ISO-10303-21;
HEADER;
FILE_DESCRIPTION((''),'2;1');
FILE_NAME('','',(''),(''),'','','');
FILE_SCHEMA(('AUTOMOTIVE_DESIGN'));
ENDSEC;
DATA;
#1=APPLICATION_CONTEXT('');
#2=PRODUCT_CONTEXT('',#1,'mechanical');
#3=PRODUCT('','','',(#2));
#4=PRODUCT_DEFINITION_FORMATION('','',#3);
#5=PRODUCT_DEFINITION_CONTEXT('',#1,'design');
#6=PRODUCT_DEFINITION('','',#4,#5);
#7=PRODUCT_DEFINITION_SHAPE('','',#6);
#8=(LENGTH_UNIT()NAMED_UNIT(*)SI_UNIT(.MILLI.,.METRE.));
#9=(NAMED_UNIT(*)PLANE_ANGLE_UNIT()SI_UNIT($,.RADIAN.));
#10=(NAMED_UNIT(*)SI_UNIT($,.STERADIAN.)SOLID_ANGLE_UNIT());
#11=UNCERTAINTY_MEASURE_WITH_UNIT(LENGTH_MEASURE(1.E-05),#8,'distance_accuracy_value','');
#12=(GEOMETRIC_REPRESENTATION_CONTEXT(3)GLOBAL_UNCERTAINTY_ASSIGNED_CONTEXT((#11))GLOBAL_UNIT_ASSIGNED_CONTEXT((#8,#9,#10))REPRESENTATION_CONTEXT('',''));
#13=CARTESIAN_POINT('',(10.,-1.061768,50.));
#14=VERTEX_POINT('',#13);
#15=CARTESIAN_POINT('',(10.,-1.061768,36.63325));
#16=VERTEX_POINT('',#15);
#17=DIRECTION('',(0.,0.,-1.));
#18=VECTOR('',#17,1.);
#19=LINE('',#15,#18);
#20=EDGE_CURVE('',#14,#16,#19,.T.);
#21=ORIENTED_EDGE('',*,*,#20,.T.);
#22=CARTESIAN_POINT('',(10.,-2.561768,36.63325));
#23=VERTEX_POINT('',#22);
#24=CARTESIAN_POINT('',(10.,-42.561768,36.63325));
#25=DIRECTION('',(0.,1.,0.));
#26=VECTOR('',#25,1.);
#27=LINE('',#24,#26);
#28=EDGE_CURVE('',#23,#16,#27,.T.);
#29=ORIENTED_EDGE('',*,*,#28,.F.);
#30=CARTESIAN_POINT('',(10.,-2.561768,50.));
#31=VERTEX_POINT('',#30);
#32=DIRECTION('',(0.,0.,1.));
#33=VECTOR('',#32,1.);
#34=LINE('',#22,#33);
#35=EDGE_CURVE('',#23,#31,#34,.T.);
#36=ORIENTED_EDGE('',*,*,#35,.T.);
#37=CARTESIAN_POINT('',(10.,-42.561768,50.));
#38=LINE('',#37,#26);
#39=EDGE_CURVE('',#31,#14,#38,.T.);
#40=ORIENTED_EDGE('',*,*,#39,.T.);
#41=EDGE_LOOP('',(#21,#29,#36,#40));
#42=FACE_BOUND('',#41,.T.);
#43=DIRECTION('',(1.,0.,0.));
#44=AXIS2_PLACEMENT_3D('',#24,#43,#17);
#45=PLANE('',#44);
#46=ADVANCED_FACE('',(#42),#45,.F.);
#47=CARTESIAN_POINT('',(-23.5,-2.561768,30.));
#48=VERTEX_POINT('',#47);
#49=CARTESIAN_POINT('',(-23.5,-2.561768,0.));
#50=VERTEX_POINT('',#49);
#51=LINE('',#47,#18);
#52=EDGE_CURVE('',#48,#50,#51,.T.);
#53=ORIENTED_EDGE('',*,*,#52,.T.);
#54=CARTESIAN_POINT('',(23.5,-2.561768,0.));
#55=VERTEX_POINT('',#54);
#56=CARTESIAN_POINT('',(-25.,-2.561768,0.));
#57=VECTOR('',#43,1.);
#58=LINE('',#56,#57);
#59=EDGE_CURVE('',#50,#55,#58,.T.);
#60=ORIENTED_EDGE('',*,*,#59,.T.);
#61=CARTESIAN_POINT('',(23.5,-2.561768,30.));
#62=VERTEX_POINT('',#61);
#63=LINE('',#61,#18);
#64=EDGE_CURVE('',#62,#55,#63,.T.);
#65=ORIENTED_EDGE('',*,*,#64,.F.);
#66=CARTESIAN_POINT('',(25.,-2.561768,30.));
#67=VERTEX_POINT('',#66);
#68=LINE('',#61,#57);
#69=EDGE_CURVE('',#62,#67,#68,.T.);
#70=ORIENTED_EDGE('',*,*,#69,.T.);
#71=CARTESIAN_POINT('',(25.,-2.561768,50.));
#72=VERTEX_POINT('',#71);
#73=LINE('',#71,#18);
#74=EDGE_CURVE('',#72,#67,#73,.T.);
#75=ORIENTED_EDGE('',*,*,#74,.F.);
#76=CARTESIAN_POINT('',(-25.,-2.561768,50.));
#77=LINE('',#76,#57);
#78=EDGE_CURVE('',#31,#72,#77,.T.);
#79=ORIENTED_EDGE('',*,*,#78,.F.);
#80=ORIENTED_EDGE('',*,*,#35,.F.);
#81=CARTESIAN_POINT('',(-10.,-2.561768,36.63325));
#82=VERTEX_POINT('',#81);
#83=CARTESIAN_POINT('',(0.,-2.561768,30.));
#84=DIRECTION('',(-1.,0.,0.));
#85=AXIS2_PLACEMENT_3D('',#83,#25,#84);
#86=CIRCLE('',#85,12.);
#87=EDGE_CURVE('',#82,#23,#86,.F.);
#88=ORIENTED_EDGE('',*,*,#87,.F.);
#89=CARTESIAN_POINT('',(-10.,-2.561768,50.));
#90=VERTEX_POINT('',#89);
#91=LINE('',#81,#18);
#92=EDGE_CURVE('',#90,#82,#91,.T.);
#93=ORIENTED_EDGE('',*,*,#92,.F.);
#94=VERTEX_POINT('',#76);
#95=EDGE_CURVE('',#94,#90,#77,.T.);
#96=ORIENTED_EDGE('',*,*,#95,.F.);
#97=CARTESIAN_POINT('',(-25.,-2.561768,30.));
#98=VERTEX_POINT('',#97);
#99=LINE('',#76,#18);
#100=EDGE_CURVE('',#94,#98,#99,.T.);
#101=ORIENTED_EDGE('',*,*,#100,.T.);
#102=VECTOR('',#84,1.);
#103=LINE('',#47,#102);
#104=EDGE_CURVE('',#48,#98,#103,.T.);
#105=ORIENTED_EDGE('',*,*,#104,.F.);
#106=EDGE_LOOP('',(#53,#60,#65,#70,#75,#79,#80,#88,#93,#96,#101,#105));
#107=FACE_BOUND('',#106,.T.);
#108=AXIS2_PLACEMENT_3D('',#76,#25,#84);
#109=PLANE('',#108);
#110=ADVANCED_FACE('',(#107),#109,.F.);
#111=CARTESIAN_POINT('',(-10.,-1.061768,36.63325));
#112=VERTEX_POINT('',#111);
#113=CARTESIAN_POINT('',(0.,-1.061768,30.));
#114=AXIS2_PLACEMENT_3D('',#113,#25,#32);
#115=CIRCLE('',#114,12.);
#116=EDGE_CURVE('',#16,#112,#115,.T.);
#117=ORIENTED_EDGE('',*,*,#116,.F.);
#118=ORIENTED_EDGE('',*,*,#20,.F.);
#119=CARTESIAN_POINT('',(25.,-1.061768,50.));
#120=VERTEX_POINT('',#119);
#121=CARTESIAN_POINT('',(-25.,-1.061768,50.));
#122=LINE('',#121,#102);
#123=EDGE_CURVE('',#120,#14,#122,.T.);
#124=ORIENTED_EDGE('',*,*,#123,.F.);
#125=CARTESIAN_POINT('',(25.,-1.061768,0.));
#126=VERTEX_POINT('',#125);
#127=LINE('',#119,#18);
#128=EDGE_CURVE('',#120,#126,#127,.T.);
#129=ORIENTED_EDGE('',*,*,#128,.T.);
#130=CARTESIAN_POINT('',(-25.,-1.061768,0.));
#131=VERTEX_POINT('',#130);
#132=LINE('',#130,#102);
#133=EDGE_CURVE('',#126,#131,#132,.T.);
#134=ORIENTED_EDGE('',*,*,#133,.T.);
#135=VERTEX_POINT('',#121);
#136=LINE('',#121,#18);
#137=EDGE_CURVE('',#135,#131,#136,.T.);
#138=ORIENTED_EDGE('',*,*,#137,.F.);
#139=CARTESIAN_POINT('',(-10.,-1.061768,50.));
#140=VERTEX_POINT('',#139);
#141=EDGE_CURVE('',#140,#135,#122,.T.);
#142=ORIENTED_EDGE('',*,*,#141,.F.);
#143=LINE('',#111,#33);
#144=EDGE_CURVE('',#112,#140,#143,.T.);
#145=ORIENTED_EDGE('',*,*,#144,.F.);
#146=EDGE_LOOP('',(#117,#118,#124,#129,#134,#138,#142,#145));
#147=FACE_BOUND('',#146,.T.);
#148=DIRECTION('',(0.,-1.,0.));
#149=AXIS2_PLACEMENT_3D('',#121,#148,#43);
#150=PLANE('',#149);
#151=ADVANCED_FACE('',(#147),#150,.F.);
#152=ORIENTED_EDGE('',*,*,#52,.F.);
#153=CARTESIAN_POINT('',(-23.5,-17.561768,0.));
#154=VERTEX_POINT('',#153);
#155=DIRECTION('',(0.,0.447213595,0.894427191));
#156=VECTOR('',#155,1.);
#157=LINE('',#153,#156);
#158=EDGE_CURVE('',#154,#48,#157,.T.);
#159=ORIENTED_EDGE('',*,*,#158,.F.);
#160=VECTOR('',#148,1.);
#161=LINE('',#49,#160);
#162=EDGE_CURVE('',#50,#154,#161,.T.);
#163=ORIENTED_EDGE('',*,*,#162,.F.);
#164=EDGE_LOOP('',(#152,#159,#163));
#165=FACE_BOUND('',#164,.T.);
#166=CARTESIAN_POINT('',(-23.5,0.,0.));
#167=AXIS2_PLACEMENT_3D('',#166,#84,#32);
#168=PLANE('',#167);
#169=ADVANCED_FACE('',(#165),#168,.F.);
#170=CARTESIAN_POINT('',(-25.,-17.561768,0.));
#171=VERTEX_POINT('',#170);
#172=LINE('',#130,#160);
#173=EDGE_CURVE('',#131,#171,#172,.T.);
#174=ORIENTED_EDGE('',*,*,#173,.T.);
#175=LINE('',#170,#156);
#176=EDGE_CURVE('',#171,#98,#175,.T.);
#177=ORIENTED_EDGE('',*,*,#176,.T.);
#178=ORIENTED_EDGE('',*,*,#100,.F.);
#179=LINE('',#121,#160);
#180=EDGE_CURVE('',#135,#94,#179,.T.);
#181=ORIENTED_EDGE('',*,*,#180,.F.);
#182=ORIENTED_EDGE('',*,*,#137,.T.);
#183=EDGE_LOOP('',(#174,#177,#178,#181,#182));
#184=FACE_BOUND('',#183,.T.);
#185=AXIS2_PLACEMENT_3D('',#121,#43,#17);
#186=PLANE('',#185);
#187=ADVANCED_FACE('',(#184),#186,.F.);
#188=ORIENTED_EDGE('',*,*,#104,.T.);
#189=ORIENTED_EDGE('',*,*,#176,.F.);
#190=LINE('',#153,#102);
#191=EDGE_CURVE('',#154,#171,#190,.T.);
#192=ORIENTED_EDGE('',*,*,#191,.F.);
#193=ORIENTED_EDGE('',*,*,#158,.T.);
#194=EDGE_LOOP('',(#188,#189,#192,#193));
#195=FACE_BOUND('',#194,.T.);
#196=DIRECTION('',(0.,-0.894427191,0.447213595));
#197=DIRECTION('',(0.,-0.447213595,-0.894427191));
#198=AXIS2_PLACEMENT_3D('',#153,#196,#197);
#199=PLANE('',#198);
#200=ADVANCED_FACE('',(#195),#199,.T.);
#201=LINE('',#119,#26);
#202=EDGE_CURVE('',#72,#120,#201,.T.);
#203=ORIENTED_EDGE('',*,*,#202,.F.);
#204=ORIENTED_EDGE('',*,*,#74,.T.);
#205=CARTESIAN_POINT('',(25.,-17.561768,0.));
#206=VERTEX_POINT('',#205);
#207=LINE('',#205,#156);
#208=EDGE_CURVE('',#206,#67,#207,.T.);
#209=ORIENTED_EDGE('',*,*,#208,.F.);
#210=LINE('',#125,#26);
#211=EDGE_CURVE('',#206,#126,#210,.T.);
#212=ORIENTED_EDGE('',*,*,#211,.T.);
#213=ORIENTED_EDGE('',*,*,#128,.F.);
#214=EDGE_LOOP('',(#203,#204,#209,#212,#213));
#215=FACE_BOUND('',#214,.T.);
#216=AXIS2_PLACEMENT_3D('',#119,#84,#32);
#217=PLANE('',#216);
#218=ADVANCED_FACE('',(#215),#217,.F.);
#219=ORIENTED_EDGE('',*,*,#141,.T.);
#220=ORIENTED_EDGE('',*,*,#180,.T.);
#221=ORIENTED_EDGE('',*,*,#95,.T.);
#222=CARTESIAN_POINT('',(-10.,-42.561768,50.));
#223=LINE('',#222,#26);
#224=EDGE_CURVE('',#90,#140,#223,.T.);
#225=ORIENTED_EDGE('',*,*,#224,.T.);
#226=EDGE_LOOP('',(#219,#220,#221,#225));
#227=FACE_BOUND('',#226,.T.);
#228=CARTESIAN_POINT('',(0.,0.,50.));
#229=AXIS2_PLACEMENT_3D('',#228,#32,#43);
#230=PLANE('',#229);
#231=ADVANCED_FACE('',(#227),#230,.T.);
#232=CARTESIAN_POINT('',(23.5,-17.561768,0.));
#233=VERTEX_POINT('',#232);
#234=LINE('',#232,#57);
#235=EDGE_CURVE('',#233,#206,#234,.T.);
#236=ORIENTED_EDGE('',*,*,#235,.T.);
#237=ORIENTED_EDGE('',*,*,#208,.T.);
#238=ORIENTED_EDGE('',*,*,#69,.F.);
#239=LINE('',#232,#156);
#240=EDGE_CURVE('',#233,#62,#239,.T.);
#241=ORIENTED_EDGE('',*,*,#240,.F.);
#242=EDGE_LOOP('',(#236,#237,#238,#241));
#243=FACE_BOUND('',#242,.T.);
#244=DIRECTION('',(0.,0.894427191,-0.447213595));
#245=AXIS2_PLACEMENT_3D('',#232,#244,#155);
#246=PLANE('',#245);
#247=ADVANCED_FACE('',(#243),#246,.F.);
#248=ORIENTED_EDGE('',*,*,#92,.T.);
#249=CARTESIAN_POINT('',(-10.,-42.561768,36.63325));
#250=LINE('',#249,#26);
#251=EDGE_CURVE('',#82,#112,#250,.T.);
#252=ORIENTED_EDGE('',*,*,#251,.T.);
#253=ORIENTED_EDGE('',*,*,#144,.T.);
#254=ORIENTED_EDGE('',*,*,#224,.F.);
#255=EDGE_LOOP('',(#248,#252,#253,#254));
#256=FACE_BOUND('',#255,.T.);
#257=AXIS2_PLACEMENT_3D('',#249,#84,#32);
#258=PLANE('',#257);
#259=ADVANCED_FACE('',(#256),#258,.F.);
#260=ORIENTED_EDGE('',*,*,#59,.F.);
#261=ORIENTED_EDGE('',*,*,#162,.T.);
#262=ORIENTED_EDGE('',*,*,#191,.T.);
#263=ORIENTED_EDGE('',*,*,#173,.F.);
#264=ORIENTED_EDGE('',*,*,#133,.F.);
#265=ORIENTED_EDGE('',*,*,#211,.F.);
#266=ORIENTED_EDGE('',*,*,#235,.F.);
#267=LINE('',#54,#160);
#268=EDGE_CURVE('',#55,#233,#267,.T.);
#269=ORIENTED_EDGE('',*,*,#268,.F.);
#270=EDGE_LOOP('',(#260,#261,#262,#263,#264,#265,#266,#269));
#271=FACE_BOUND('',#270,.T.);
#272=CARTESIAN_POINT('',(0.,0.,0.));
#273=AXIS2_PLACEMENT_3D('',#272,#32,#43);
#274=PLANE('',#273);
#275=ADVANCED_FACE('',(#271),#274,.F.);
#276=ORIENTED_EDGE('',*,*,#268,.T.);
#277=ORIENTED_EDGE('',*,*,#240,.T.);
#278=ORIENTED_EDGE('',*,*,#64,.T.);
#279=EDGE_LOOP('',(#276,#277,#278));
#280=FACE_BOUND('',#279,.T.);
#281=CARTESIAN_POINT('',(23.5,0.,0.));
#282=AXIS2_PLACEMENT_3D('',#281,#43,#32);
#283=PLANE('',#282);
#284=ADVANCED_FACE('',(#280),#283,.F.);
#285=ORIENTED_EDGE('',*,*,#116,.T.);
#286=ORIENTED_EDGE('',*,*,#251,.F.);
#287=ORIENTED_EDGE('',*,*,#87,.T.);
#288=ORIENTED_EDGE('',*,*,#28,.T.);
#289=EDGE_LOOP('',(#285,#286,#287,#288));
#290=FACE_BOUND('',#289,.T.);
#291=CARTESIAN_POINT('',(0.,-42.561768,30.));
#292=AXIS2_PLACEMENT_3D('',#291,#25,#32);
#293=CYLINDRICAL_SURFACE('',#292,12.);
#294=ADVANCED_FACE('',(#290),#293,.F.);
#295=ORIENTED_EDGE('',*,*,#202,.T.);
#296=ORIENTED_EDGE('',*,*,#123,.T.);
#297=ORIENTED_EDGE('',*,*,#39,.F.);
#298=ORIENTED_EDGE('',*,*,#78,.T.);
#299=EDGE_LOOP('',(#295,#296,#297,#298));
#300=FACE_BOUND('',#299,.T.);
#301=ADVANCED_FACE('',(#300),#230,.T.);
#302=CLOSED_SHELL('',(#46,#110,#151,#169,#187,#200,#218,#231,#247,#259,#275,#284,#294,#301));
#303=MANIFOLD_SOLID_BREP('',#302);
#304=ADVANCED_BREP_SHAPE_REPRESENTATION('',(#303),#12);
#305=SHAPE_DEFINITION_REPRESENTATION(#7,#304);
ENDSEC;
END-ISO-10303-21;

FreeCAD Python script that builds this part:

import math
import FreeCAD as App
import Part
import Sketcher

V = App.Vector


def add_polygon(sketch, points):
    """Adds a closed chain of lines whose ends are joined by coincident constraints."""
    first, n = sketch.GeometryCount, len(points)
    for a, b in zip(points, points[1:] + points[:1]):
        sketch.addGeometry(Part.LineSegment(App.Vector(*a, 0), App.Vector(*b, 0)), False)
    for i in range(n):
        sketch.addConstraint(Sketcher.Constraint("Coincident", first + i, 2, first + (i + 1) % n, 1))

doc = App.newDocument("Part")
params = doc.addObject("Spreadsheet::Sheet", "Params")
for row, (alias, value) in enumerate([
    ("sketch1_width", "50 mm"),
    ("sketch1_height", "1.5 mm"),
    ("pad1_length", "50 mm"),
    ("sketch2_radius", "12 mm"),
    ("sketch2_width", "20 mm"),
    ("pocket1_length", "1.5 mm"),
    ("sketch3_width", "15 mm"),
    ("sketch3_height", "30 mm"),
    ("pad2_length", "1.5 mm"),
], start=1):
    params.set(f"A{row}", alias)
    params.set(f"B{row}", "=" + value)
    params.setAlias(f"B{row}", alias)

body = doc.addObject("PartDesign::Body", "Body")

sketch1 = body.newObject("Sketcher::SketchObject", "Sketch")
sketch1.AttachmentSupport = (doc.getObject("XY_Plane"), [""])
sketch1.MapMode = "FlatFace"
add_polygon(sketch1, [(-25, -1.061768), (-25, -2.561768), (25, -2.561768), (25, -1.061768)])
sketch1.addConstraint([
    Sketcher.Constraint("Vertical", 0),
    Sketcher.Constraint("Horizontal", 1),
    Sketcher.Constraint("Vertical", 2),
    Sketcher.Constraint("Horizontal", 3),
    Sketcher.Constraint("DistanceX", 1, 1, 1, 2, 50.0),
    Sketcher.Constraint("DistanceY", 0, 2, 0, 1, 1.5),
    Sketcher.Constraint("DistanceX", 0, 2, -1, 1, 25.0),
    Sketcher.Constraint("DistanceY", 0, 2, -1, 1, 2.561768),
])
sketch1.setExpression("Constraints[8]", "Params.sketch1_width")
sketch1.setExpression("Constraints[9]", "Params.sketch1_height")
pad1 = body.newObject("PartDesign::Pad", "Pad")
pad1.Profile = sketch1
pad1.setExpression("Length", "Params.pad1_length")

sketch2 = body.newObject("Sketcher::SketchObject", "Sketch001")
sketch2.AttachmentSupport = (doc.getObject("XZ_Plane"), [""])
sketch2.MapMode = "FlatFace"
sketch2.AttachmentOffset = App.Placement(V(0, 0, 1.061768), App.Rotation())
sketch2.addGeometry([
    Part.LineSegment(V(-10, 36.63325, 0), V(-10, 50, 0)),
    Part.LineSegment(V(-10, 50, 0), V(10, 50, 0)),
    Part.LineSegment(V(10, 50, 0), V(10, 36.63325, 0)),
    Part.ArcOfCircle(Part.Circle(V(0, 30, 0), V(0, 0, 1), 12), math.radians(146.44269), math.radians(393.55731)),
], False)
sketch2.addConstraint([
    Sketcher.Constraint("Coincident", 0, 2, 1, 1),
    Sketcher.Constraint("Coincident", 1, 2, 2, 1),
    Sketcher.Constraint("Coincident", 2, 2, 3, 2),
    Sketcher.Constraint("Coincident", 3, 1, 0, 1),
    Sketcher.Constraint("Vertical", 0),
    Sketcher.Constraint("Horizontal", 1),
    Sketcher.Constraint("Vertical", 2),
    Sketcher.Constraint("Symmetric", 2, 2, 3, 1, -2),
    Sketcher.Constraint("Radius", 3, 12.0),
    Sketcher.Constraint("DistanceX", 1, 1, 1, 2, 20.0),
    Sketcher.Constraint("DistanceY", -1, 1, 3, 3, 30.0),
    Sketcher.Constraint("DistanceY", -1, 1, 0, 2, 50.0),
])
sketch2.setExpression("Constraints[8]", "Params.sketch2_radius")
sketch2.setExpression("Constraints[9]", "Params.sketch2_width")
pocket1 = body.newObject("PartDesign::Pocket", "Pocket")
pocket1.Profile = sketch2
pocket1.setExpression("Length", "Params.pocket1_length")
pocket1.Reversed = True

sketch3 = body.newObject("Sketcher::SketchObject", "Sketch002")
sketch3.AttachmentSupport = (doc.getObject("YZ_Plane"), [""])
sketch3.MapMode = "FlatFace"
sketch3.AttachmentOffset = App.Placement(V(0, 0, -25), App.Rotation())
add_polygon(sketch3, [(-2.561768, 0), (-17.561768, 0), (-2.561768, 30)])
sketch3.addConstraint([
    Sketcher.Constraint("Horizontal", 0),
    Sketcher.Constraint("Vertical", 2),
    Sketcher.Constraint("PointOnObject", 0, 2, -1),
    Sketcher.Constraint("DistanceX", 0, 2, 0, 1, 15.0),
    Sketcher.Constraint("DistanceY", 2, 2, 2, 1, 30.0),
    Sketcher.Constraint("DistanceX", 0, 2, -1, 1, 17.561768),
])
sketch3.setExpression("Constraints[6]", "Params.sketch3_width")
sketch3.setExpression("Constraints[7]", "Params.sketch3_height")
pad2 = body.newObject("PartDesign::Pad", "Pad001")
pad2.Profile = sketch3
pad2.setExpression("Length", "Params.pad2_length")
doc.recompute()

mirrored = body.newObject("PartDesign::Mirrored", "Mirrored")
mirrored.Originals = [pad2]
mirrored.MirrorPlane = (doc.getObject("YZ_Plane"), [""])
body.Tip = mirrored

doc.recompute()
